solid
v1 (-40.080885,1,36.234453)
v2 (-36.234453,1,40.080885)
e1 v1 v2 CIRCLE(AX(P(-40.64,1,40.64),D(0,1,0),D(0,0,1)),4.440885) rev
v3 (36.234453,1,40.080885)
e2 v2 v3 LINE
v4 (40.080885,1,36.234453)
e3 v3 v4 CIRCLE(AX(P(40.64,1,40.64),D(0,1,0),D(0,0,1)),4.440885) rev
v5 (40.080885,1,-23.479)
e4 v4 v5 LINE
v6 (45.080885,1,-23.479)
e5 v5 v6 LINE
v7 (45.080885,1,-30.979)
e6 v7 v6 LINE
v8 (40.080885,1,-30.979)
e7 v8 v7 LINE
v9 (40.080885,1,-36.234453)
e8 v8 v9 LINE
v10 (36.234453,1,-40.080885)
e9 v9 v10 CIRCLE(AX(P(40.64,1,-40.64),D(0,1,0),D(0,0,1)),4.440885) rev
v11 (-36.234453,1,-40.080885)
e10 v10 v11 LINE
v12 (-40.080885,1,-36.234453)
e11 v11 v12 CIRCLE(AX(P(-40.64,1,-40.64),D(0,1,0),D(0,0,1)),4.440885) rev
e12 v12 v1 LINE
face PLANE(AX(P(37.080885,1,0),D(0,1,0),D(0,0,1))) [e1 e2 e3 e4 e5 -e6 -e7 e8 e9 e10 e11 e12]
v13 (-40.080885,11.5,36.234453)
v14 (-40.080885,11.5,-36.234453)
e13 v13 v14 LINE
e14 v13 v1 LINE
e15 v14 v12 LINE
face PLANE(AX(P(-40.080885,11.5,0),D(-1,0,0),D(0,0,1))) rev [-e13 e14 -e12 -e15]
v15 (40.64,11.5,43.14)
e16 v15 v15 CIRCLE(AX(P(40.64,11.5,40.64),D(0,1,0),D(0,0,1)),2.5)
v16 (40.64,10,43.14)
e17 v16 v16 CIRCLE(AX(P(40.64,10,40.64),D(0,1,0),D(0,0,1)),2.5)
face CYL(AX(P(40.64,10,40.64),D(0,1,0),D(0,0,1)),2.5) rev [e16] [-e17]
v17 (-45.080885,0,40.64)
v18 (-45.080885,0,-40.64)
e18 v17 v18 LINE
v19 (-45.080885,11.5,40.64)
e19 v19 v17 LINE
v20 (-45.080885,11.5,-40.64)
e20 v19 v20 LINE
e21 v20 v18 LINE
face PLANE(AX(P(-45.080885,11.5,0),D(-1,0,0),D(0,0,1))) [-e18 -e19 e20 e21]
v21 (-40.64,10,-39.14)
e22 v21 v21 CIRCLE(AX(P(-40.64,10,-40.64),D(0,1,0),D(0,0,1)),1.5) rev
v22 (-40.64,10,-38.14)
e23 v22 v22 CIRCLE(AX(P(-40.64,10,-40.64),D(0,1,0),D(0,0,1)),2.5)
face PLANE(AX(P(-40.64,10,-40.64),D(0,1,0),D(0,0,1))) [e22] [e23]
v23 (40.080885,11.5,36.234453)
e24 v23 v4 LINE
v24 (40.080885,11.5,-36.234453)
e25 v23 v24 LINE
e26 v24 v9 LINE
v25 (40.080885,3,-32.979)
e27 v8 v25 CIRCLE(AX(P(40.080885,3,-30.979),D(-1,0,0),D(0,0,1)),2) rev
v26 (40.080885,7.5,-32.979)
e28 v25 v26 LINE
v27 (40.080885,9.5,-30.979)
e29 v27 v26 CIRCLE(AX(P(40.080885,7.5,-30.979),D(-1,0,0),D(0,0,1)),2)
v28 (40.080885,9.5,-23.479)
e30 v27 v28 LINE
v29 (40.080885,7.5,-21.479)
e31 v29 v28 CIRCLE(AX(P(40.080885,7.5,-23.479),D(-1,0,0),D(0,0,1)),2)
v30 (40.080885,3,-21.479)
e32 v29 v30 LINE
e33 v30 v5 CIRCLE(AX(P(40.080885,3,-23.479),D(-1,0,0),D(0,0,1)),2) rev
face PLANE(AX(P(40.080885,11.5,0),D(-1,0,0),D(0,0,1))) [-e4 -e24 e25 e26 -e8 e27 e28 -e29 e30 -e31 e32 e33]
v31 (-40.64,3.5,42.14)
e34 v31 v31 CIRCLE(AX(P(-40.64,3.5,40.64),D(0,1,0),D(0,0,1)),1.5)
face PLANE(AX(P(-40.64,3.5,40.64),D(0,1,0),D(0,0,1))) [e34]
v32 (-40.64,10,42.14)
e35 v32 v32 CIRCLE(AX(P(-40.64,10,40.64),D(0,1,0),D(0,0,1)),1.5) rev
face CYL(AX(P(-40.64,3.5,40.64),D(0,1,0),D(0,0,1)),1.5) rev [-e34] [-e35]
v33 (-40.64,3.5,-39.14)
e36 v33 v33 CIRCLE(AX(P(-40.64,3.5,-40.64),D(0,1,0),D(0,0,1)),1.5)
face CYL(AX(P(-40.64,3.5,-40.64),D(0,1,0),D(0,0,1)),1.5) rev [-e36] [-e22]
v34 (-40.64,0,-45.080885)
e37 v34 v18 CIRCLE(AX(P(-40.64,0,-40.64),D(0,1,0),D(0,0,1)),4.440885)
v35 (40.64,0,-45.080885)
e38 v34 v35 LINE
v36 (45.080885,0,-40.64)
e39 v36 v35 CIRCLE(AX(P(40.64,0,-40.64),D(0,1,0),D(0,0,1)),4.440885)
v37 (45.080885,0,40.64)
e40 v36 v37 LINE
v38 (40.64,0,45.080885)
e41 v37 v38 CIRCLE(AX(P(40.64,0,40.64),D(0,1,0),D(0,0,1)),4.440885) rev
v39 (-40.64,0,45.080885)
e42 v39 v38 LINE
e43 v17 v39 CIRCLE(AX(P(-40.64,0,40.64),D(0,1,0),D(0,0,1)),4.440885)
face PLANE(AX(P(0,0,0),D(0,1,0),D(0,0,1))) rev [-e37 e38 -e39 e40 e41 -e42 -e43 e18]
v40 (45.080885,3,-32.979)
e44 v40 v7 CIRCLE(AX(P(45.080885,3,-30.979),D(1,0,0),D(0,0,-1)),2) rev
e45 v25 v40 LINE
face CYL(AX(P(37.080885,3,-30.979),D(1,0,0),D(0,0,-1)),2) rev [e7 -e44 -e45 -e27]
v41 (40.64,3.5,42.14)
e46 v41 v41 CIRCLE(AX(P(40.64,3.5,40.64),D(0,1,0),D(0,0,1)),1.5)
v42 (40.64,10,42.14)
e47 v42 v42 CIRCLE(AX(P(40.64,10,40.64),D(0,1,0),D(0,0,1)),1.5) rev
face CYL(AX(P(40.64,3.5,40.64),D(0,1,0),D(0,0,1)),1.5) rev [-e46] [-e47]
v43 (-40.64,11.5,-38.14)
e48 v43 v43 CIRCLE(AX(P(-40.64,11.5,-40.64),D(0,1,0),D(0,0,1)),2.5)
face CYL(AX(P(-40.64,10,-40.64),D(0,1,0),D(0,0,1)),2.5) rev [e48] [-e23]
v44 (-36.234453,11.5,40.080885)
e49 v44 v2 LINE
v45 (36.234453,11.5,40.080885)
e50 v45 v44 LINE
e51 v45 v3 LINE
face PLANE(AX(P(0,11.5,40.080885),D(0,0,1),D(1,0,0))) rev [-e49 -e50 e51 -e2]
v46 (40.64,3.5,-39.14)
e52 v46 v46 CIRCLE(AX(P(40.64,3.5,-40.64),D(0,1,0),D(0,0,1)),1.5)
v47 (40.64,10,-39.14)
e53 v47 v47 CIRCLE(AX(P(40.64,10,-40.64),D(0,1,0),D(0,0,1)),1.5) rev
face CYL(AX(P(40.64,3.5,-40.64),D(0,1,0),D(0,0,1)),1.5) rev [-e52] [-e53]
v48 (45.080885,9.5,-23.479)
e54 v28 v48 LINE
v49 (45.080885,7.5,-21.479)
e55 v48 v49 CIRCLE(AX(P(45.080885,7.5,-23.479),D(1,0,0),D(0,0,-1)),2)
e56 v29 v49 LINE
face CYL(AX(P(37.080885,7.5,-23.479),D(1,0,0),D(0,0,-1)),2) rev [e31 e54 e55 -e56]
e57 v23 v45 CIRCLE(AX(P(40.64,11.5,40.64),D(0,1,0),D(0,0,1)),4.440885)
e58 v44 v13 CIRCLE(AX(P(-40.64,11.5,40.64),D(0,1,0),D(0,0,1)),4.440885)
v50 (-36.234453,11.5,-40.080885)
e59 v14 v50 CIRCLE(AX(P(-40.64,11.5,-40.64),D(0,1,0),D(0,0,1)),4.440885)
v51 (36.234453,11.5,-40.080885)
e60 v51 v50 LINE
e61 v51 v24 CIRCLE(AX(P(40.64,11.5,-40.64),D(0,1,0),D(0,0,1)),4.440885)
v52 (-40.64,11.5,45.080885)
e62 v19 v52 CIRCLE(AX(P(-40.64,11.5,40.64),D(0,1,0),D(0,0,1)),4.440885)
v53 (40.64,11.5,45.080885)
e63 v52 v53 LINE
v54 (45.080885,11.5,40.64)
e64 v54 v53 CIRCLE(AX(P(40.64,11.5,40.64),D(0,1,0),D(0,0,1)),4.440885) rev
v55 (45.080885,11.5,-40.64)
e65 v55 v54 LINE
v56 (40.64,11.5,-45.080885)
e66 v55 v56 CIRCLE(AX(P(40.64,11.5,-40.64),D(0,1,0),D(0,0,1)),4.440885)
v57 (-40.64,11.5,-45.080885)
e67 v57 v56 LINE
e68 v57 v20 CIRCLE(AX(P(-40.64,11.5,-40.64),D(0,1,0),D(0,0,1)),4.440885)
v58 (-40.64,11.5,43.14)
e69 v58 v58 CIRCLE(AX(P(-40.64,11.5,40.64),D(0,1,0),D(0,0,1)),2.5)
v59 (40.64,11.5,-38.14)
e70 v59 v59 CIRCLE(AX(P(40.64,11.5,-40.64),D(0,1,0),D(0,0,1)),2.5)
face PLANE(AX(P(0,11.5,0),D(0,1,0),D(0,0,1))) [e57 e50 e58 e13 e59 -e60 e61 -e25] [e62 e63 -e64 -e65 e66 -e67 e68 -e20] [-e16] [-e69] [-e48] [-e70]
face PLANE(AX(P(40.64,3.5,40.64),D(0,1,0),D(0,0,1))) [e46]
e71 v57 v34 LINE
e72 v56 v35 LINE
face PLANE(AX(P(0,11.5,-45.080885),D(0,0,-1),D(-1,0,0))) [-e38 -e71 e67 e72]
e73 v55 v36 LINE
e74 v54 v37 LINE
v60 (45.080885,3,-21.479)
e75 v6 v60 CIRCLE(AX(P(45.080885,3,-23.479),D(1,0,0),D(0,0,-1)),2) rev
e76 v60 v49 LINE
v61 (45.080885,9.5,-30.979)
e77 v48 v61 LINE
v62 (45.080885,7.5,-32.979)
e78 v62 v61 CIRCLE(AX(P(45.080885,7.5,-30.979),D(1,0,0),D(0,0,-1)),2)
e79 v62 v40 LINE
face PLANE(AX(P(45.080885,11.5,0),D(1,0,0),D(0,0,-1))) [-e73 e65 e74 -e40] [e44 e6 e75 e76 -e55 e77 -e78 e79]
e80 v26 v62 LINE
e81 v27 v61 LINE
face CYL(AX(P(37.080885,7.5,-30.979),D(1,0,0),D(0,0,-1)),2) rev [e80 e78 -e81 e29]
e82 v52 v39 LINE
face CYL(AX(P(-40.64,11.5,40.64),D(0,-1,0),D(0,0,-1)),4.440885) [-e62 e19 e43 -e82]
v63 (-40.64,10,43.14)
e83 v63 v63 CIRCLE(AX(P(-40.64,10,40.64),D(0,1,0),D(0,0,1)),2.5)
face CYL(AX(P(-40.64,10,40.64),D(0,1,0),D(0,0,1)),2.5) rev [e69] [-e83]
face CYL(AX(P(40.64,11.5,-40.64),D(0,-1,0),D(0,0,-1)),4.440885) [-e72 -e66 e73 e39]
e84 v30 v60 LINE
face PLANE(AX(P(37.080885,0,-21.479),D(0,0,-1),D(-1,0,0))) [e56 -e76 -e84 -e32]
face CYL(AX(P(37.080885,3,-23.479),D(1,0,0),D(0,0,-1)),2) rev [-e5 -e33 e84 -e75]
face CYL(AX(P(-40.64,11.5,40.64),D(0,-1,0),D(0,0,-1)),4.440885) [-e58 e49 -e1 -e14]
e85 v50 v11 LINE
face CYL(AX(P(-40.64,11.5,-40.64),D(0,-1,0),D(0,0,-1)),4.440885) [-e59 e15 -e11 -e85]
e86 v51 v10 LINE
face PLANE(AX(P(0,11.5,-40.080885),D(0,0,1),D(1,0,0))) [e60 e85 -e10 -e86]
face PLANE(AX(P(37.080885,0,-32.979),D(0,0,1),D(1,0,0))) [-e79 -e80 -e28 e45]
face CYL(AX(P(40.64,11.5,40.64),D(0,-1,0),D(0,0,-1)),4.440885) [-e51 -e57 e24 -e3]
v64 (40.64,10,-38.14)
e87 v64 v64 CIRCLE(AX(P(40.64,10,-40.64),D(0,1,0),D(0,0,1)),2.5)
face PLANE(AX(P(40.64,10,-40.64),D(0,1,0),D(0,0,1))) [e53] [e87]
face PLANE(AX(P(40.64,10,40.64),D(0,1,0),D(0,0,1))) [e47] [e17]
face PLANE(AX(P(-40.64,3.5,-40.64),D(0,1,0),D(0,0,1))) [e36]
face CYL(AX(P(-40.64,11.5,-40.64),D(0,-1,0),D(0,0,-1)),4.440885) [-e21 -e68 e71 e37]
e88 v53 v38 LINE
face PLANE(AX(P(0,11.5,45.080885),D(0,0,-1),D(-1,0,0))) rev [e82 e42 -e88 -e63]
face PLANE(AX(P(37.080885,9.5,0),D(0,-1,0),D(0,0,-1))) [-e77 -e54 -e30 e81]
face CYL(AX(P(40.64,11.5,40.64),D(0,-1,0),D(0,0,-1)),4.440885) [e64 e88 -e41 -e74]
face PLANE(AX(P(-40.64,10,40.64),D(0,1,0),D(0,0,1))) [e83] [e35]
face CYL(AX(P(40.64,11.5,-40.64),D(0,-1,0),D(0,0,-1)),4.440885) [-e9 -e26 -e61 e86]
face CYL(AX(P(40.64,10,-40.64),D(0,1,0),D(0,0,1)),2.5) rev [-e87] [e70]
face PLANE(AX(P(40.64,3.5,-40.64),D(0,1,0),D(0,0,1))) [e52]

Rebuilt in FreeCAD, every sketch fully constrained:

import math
import FreeCAD as App
import Part
import Sketcher
from FreeCAD import Vector

doc = App.newDocument("Part")
body = doc.addObject("PartDesign::Body", "Body")

sketch1 = doc.addObject("Sketcher::SketchObject", "Sketch")
body.addObject(sketch1)
sketch1.AttachmentSupport = (doc.XZ_Plane, [""])
sketch1.MapMode = "FlatFace"
sketch1.addGeometry([
    Part.ArcOfCircle(Part.Circle(Vector(-40.6, -40.6, 0), Vector(0, 0, 1), 4.4), math.radians(180), math.radians(270)),
    Part.LineSegment(Vector(-45.1, -40.6, 0), Vector(-45.1, 40.6, 0)),
    Part.ArcOfCircle(Part.Circle(Vector(-40.6, 40.6, 0), Vector(0, 0, 1), 4.4), math.radians(90), math.radians(180)),
    Part.LineSegment(Vector(-40.6, 45.1, 0), Vector(40.6, 45.1, 0)),
    Part.ArcOfCircle(Part.Circle(Vector(40.6, 40.6, 0), Vector(0, 0, 1), 4.4), math.radians(0), math.radians(90)),
    Part.LineSegment(Vector(45.1, 40.6, 0), Vector(45.1, -40.6, 0)),
    Part.ArcOfCircle(Part.Circle(Vector(40.6, -40.6, 0), Vector(0, 0, 1), 4.4), math.radians(-90), math.radians(0)),
    Part.LineSegment(Vector(40.6, -45.1, 0), Vector(-40.6, -45.1, 0)),
    Part.ArcOfCircle(Part.Circle(Vector(40.6, 40.6, 0), Vector(0, 0, 1), 4.4), math.radians(-173), math.radians(-97)),
    Part.LineSegment(Vector(36.2, 40.1, 0), Vector(-36.2, 40.1, 0)),
    Part.ArcOfCircle(Part.Circle(Vector(-40.6, 40.6, 0), Vector(0, 0, 1), 4.4), math.radians(-83), math.radians(-7)),
    Part.LineSegment(Vector(-40.1, 36.2, 0), Vector(-40.1, -36.2, 0)),
    Part.ArcOfCircle(Part.Circle(Vector(-40.6, -40.6, 0), Vector(0, 0, 1), 4.4), math.radians(7), math.radians(83)),
    Part.LineSegment(Vector(-36.2, -40.1, 0), Vector(36.2, -40.1, 0)),
    Part.ArcOfCircle(Part.Circle(Vector(40.6, -40.6, 0), Vector(0, 0, 1), 4.4), math.radians(97), math.radians(173)),
    Part.LineSegment(Vector(40.1, -36.2, 0), Vector(40.1, 36.2, 0)),
], False)
sketch1.addConstraint([
    Sketcher.Constraint("Tangent", 0, 1, 1, 1),
    Sketcher.Constraint("Tangent", 1, 2, 2, 2),
    Sketcher.Constraint("Tangent", 2, 1, 3, 1),
    Sketcher.Constraint("Tangent", 3, 2, 4, 2),
    Sketcher.Constraint("Tangent", 4, 1, 5, 1),
    Sketcher.Constraint("Tangent", 5, 2, 6, 2),
    Sketcher.Constraint("Tangent", 6, 1, 7, 1),
    Sketcher.Constraint("Tangent", 7, 2, 0, 2),
    Sketcher.Constraint("Coincident", 8, 1, 9, 1),
    Sketcher.Constraint("Coincident", 9, 2, 10, 2),
    Sketcher.Constraint("Coincident", 10, 1, 11, 1),
    Sketcher.Constraint("Coincident", 11, 2, 12, 2),
    Sketcher.Constraint("Coincident", 12, 1, 13, 1),
    Sketcher.Constraint("Coincident", 13, 2, 14, 2),
    Sketcher.Constraint("Coincident", 14, 1, 15, 1),
    Sketcher.Constraint("Coincident", 15, 2, 8, 2),
    Sketcher.Constraint("Vertical", 1),
    Sketcher.Constraint("Horizontal", 3),
    Sketcher.Constraint("Vertical", 5),
    Sketcher.Constraint("Horizontal", 7),
    Sketcher.Constraint("Horizontal", 9),
    Sketcher.Constraint("Vertical", 11),
    Sketcher.Constraint("Horizontal", 13),
    Sketcher.Constraint("Vertical", 15),
    Sketcher.Constraint("Coincident", 8, 3, 4, 3),
    Sketcher.Constraint("Coincident", 10, 3, 2, 3),
    Sketcher.Constraint("Coincident", 12, 3, 0, 3),
    Sketcher.Constraint("Coincident", 14, 3, 6, 3),
    Sketcher.Constraint("Equal", 0, 2),
    Sketcher.Constraint("Equal", 2, 4),
    Sketcher.Constraint("Equal", 4, 6),
    Sketcher.Constraint("Equal", 6, 8),
    Sketcher.Constraint("Equal", 8, 10),
    Sketcher.Constraint("Equal", 10, 12),
    Sketcher.Constraint("Equal", 12, 14),
    Sketcher.Constraint("Symmetric", 0, 3, 4, 3, -1, 1),
    Sketcher.Constraint("Horizontal", 11, 2, 14, 1),
    Sketcher.Constraint("Vertical", 9, 2, 12, 1),
    Sketcher.Constraint("Equal", 7, 1),
    Sketcher.Constraint("Equal", 13, 11),
    Sketcher.Constraint("DistanceY", 8, 1, 3, 2, 5.0),
    Sketcher.Constraint("DistanceX", 3, 1, 3, 2, 81.28),
    Sketcher.Constraint("Radius", 0, 4.440885),
])
pad1 = doc.addObject("PartDesign::Pad", "Pad")
body.addObject(pad1)
pad1.Profile = sketch1
pad1.Length = 11.5
pad1.Reversed = True

sketch2 = doc.addObject("Sketcher::SketchObject", "Sketch001")
body.addObject(sketch2)
sketch2.AttachmentSupport = (doc.XZ_Plane, [""])
sketch2.MapMode = "FlatFace"
sketch2.AttachmentOffset = App.Placement(Vector(0, 0, -11.5), App.Rotation())
sketch2.addGeometry([
    Part.Circle(Vector(-40.6, -40.6, 0), Vector(0, 0, 1), 1.5),
    Part.Circle(Vector(40.6, -40.6, 0), Vector(0, 0, 1), 1.5),
    Part.Circle(Vector(40.6, 40.6, 0), Vector(0, 0, 1), 1.5),
    Part.Circle(Vector(-40.6, 40.6, 0), Vector(0, 0, 1), 1.5),
], False)
sketch2.addConstraint([
    Sketcher.Constraint("Equal", 0, 1),
    Sketcher.Constraint("Equal", 1, 2),
    Sketcher.Constraint("Equal", 2, 3),
    Sketcher.Constraint("Symmetric", 0, 3, 2, 3, -1, 1),
    Sketcher.Constraint("Symmetric", 1, 3, 3, 3, -1, 1),
    Sketcher.Constraint("Symmetric", 0, 3, 1, 3, -2),
    Sketcher.Constraint("Diameter", 0, 3.0),
    Sketcher.Constraint("DistanceX", 0, 3, -1, 1, 40.64),
    Sketcher.Constraint("DistanceY", 0, 3, -1, 1, 40.64),
])
pocket1 = doc.addObject("PartDesign::Pocket", "Pocket")
body.addObject(pocket1)
pocket1.Profile = sketch2
pocket1.Length = 8
pocket1.Reversed = True

sketch3 = doc.addObject("Sketcher::SketchObject", "Sketch002")
body.addObject(sketch3)
sketch3.AttachmentSupport = (doc.YZ_Plane, [""])
sketch3.MapMode = "FlatFace"
sketch3.AttachmentOffset = App.Placement(Vector(0, 0, 45.080885), App.Rotation())
sketch3.addGeometry([
    Part.LineSegment(Vector(9.5, -31, 0), Vector(9.5, -23.5, 0)),
    Part.ArcOfCircle(Part.Circle(Vector(7.5, -23.5, 0), Vector(0, 0, 1), 2), math.radians(0), math.radians(90)),
    Part.LineSegment(Vector(7.5, -21.5, 0), Vector(3, -21.5, 0)),
    Part.ArcOfCircle(Part.Circle(Vector(3, -23.5, 0), Vector(0, 0, 1), 2), math.radians(90), math.radians(180)),
    Part.LineSegment(Vector(1, -23.5, 0), Vector(1, -31, 0)),
    Part.ArcOfCircle(Part.Circle(Vector(3, -31, 0), Vector(0, 0, 1), 2), math.radians(-180), math.radians(-90)),
    Part.LineSegment(Vector(3, -33, 0), Vector(7.5, -33, 0)),
    Part.ArcOfCircle(Part.Circle(Vector(7.5, -31, 0), Vector(0, 0, 1), 2), math.radians(-90), math.radians(0)),
], False)
sketch3.addConstraint([
    Sketcher.Constraint("Tangent", 0, 2, 1, 1),
    Sketcher.Constraint("Tangent", 1, 2, 2, 1),
    Sketcher.Constraint("Tangent", 2, 2, 3, 1),
    Sketcher.Constraint("Tangent", 3, 2, 4, 1),
    Sketcher.Constraint("Tangent", 4, 2, 5, 1),
    Sketcher.Constraint("Tangent", 5, 2, 6, 1),
    Sketcher.Constraint("Tangent", 6, 2, 7, 1),
    Sketcher.Constraint("Tangent", 7, 2, 0, 1),
    Sketcher.Constraint("Vertical", 0),
    Sketcher.Constraint("Horizontal", 2),
    Sketcher.Constraint("Vertical", 4),
    Sketcher.Constraint("Horizontal", 6),
    Sketcher.Constraint("Equal", 1, 3),
    Sketcher.Constraint("Equal", 3, 5),
    Sketcher.Constraint("Equal", 5, 7),
    Sketcher.Constraint("Radius", 1, 2.0),
    Sketcher.Constraint("DistanceX", 2, 2, 2, 1, 4.5),
    Sketcher.Constraint("DistanceY", 0, 1, 0, 2, 7.5),
    Sketcher.Constraint("DistanceX", -1, 1, 3, 3, 3.0),
    Sketcher.Constraint("DistanceY", 1, 3, -1, 1, 23.479),
])
pocket2 = doc.addObject("PartDesign::Pocket", "Pocket001")
body.addObject(pocket2)
pocket2.Profile = sketch3
pocket2.Length = 8

sketch4 = doc.addObject("Sketcher::SketchObject", "Sketch003")
body.addObject(sketch4)
sketch4.AttachmentSupport = (doc.XZ_Plane, [""])
sketch4.MapMode = "FlatFace"
sketch4.AttachmentOffset = App.Placement(Vector(0, 0, -11.5), App.Rotation())
sketch4.addGeometry([
    Part.Circle(Vector(-40.6, -40.6, 0), Vector(0, 0, 1), 2.5),
    Part.Circle(Vector(40.6, -40.6, 0), Vector(0, 0, 1), 2.5),
    Part.Circle(Vector(40.6, 40.6, 0), Vector(0, 0, 1), 2.5),
    Part.Circle(Vector(-40.6, 40.6, 0), Vector(0, 0, 1), 2.5),
], False)
sketch4.addConstraint([
    Sketcher.Constraint("Equal", 0, 1),
    Sketcher.Constraint("Equal", 1, 2),
    Sketcher.Constraint("Equal", 2, 3),
    Sketcher.Constraint("Symmetric", 0, 3, 2, 3, -1, 1),
    Sketcher.Constraint("Symmetric", 1, 3, 3, 3, -1, 1),
    Sketcher.Constraint("Symmetric", 0, 3, 1, 3, -2),
    Sketcher.Constraint("Diameter", 0, 5.0),
    Sketcher.Constraint("DistanceX", 0, 3, -1, 1, 40.64),
    Sketcher.Constraint("DistanceY", 0, 3, -1, 1, 40.64),
])
pocket3 = doc.addObject("PartDesign::Pocket", "Pocket002")
body.addObject(pocket3)
pocket3.Profile = sketch4
pocket3.Length = 1.5
pocket3.Reversed = True

sketch5 = doc.addObject("Sketcher::SketchObject", "Sketch004")
body.addObject(sketch5)
sketch5.AttachmentSupport = (doc.XZ_Plane, [""])
sketch5.MapMode = "FlatFace"
sketch5.addGeometry([
    Part.ArcOfCircle(Part.Circle(Vector(40.6, 40.6, 0), Vector(0, 0, 1), 4.4), math.radians(-173), math.radians(-97)),
    Part.LineSegment(Vector(36.2, 40.1, 0), Vector(-36.2, 40.1, 0)),
    Part.ArcOfCircle(Part.Circle(Vector(-40.6, 40.6, 0), Vector(0, 0, 1), 4.4), math.radians(-83), math.radians(-7)),
    Part.LineSegment(Vector(-40.1, 36.2, 0), Vector(-40.1, -36.2, 0)),
    Part.ArcOfCircle(Part.Circle(Vector(-40.6, -40.6, 0), Vector(0, 0, 1), 4.4), math.radians(7), math.radians(83)),
    Part.LineSegment(Vector(-36.2, -40.1, 0), Vector(36.2, -40.1, 0)),
    Part.ArcOfCircle(Part.Circle(Vector(40.6, -40.6, 0), Vector(0, 0, 1), 4.4), math.radians(97), math.radians(173)),
    Part.LineSegment(Vector(40.1, -36.2, 0), Vector(40.1, 36.2, 0)),
], False)
sketch5.addConstraint([
    Sketcher.Constraint("Coincident", 0, 1, 1, 1),
    Sketcher.Constraint("Coincident", 1, 2, 2, 2),
    Sketcher.Constraint("Coincident", 2, 1, 3, 1),
    Sketcher.Constraint("Coincident", 3, 2, 4, 2),
    Sketcher.Constraint("Coincident", 4, 1, 5, 1),
    Sketcher.Constraint("Coincident", 5, 2, 6, 2),
    Sketcher.Constraint("Coincident", 6, 1, 7, 1),
    Sketcher.Constraint("Coincident", 7, 2, 0, 2),
    Sketcher.Constraint("Horizontal", 1),
    Sketcher.Constraint("Vertical", 3),
    Sketcher.Constraint("Horizontal", 5),
    Sketcher.Constraint("Vertical", 7),
    Sketcher.Constraint("Equal", 0, 2),
    Sketcher.Constraint("Equal", 2, 4),
    Sketcher.Constraint("Equal", 4, 6),
    Sketcher.Constraint("Symmetric", 0, 3, 4, 3, -1, 1),
    Sketcher.Constraint("Symmetric", 2, 3, 6, 3, -1, 1),
    Sketcher.Constraint("Symmetric", 0, 3, 2, 3, -2),
    Sketcher.Constraint("Horizontal", 3, 2, 6, 1),
    Sketcher.Constraint("Vertical", 1, 2, 4, 1),
    Sketcher.Constraint("Equal", 5, 3),
    Sketcher.Constraint("DistanceX", -1, 1, 0, 3, 40.64),
    Sketcher.Constraint("DistanceY", -1, 1, 0, 3, 40.64),
    Sketcher.Constraint("Radius", 0, 4.440885),
    Sketcher.Constraint("DistanceX", 1, 2, 1, 1, 72.468906),
])
pad2 = doc.addObject("PartDesign::Pad", "Pad001")
body.addObject(pad2)
pad2.Profile = sketch5
pad2.Length = 1
pad2.Reversed = True

doc.recompute()
